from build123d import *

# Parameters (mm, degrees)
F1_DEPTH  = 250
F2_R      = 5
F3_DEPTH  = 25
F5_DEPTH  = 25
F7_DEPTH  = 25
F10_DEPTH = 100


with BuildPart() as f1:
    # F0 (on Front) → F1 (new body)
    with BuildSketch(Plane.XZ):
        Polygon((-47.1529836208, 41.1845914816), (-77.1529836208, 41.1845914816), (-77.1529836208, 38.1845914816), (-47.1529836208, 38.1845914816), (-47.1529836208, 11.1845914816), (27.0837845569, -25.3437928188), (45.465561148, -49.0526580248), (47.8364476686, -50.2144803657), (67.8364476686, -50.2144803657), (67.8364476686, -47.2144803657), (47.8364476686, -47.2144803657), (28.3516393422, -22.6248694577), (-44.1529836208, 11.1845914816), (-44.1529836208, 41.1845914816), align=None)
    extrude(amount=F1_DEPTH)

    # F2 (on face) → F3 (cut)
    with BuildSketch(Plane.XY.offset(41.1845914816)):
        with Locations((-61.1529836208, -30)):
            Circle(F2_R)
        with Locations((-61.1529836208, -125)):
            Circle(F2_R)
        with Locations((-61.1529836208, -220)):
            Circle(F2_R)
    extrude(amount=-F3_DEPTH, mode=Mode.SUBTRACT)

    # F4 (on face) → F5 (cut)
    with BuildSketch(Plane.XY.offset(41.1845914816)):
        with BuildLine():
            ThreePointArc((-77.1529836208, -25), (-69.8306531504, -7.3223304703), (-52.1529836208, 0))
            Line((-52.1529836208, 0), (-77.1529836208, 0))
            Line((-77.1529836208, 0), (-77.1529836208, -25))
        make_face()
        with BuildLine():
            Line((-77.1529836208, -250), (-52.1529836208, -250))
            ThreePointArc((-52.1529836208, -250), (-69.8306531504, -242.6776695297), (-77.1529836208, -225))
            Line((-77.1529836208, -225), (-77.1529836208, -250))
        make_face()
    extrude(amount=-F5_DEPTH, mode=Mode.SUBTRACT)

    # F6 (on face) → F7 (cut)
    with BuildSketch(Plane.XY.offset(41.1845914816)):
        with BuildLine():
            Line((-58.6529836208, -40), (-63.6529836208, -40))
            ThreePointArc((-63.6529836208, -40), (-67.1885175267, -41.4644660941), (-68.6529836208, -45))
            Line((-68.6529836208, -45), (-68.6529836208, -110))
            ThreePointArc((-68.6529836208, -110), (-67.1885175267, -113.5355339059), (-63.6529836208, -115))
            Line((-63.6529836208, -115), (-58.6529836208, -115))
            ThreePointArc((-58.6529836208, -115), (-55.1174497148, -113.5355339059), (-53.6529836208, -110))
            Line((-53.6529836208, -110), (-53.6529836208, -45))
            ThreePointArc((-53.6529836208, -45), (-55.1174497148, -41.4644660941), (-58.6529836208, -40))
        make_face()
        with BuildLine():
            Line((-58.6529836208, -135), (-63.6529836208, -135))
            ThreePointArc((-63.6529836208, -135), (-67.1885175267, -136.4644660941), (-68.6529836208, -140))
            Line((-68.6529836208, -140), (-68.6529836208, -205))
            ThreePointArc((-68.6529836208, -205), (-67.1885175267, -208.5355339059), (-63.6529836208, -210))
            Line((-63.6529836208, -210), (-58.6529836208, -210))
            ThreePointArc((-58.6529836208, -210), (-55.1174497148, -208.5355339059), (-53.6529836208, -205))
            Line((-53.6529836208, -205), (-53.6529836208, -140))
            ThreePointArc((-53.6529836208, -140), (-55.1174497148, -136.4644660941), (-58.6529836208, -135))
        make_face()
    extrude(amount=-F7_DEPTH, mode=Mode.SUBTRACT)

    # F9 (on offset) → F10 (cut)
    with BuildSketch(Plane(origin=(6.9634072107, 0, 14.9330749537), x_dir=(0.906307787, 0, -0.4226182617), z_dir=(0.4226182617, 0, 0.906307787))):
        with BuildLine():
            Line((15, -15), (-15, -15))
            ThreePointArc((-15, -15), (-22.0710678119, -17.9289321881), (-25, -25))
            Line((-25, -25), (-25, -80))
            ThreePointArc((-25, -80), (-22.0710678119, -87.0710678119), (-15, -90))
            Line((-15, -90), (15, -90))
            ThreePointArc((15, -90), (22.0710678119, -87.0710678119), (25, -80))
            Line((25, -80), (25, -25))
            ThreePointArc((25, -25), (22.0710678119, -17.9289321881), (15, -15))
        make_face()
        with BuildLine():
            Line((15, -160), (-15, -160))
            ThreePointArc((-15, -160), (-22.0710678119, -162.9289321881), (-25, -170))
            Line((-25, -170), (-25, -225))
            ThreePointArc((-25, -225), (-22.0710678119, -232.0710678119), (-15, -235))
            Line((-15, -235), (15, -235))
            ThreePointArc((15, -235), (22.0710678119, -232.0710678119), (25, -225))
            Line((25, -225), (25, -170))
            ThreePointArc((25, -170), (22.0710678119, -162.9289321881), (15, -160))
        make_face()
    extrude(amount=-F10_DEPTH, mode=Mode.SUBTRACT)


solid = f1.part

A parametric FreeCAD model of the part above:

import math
import FreeCAD as App
import Part
import Sketcher

V = App.Vector
Q = App.Units.Quantity


def add_polygon(sketch, points):
    """Adds a closed chain of lines whose ends are joined by coincident constraints."""
    first, n = sketch.GeometryCount, len(points)
    for a, b in zip(points, points[1:] + points[:1]):
        sketch.addGeometry(Part.LineSegment(App.Vector(*a, 0), App.Vector(*b, 0)), False)
    for i in range(n):
        sketch.addConstraint(Sketcher.Constraint("Coincident", first + i, 2, first + (i + 1) % n, 1))

doc = App.newDocument("Part")
body = doc.addObject("PartDesign::Body", "Body")

sketch1 = doc.addObject("Sketcher::SketchObject", "Sketch")
body.addObject(sketch1)
sketch1.AttachmentSupport = (doc.XZ_Plane, [""])
sketch1.MapMode = "FlatFace"
add_polygon(sketch1, [(-77.2, 41.2), (-77.2, 38.2), (-47.2, 38.2), (-47.2, 11.2), (27.1, -25.3), (45.5, -49.1), (47.8, -50.2), (67.8, -50.2), (67.8, -47.2), (47.8, -47.2), (28.4, -22.6), (-44.2, 11.2), (-44.2, 41.2)])
sketch1.addConstraint(Sketcher.Constraint("Vertical", 0))
sketch1.addConstraint(Sketcher.Constraint("Horizontal", 1))
sketch1.addConstraint(Sketcher.Constraint("Vertical", 2))
sketch1.addConstraint(Sketcher.Constraint("Horizontal", 6))
sketch1.addConstraint(Sketcher.Constraint("Vertical", 7))
sketch1.addConstraint(Sketcher.Constraint("Horizontal", 8))
sketch1.addConstraint(Sketcher.Constraint("Vertical", 11))
sketch1.addConstraint(Sketcher.Constraint("Horizontal", 12))
sketch1.addConstraint(Sketcher.Constraint("Horizontal", 2, 2, 10, 2))
sketch1.addConstraint(Sketcher.Constraint("Vertical", 5, 2, 8, 2))
sketch1.addConstraint(Sketcher.Constraint("Equal", 0, 7))
sketch1.addConstraint(Sketcher.Constraint("Equal", 1, 11))
sketch1.addConstraint(Sketcher.Constraint("DistanceX", 1, 1, 1, 2, 30.0))
sketch1.addConstraint(Sketcher.Constraint("DistanceX", 6, 1, 6, 2, 20.0))
sketch1.addConstraint(Sketcher.Constraint("DistanceX", 12, 2, 12, 1, 33.0))
sketch1.addConstraint(Sketcher.Constraint("DistanceY", 0, 2, 0, 1, 3.0))
sketch1.addConstraint(Sketcher.Constraint("Angle", 10, Q("155 deg")))
sketch1.addConstraint(Sketcher.Constraint("Distance", 4, 30.0))
sketch1.addConstraint(Sketcher.Constraint("Distance", 10, 80.0))
sketch1.addConstraint(Sketcher.Constraint("DistanceY", -1, 1, 0, 2, 38.184591))
sketch1.addConstraint(Sketcher.Constraint("DistanceX", -1, 1, 4, 2, 45.465561))
sketch1.addConstraint(Sketcher.Constraint("DistanceY", 4, 2, -1, 1, 49.052658))
sketch1.addConstraint(Sketcher.Constraint("DistanceY", 5, 2, -1, 1, 50.21448))
sketch1.addConstraint(Sketcher.Constraint("DistanceX", -1, 1, 9, 2, 28.351639))
sketch1.addConstraint(Sketcher.Constraint("DistanceX", 2, 2, 3, 2, 74.236768))
sketch1.addConstraint(Sketcher.Constraint("DistanceX", 2, 2, 5, 2, 94.989431))
pad1 = doc.addObject("PartDesign::Pad", "Pad")
body.addObject(pad1)
pad1.Profile = sketch1
pad1.Length = 250

sketch2 = doc.addObject("Sketcher::SketchObject", "Sketch001")
body.addObject(sketch2)
sketch2.AttachmentSupport = (doc.XY_Plane, [""])
sketch2.MapMode = "FlatFace"
sketch2.AttachmentOffset = App.Placement(V(0, 0, 41.184591), App.Rotation())
sketch2.addGeometry(Part.Circle(V(-61, -30, 0), V(0, 0, 1), 5), False)
sketch2.addGeometry(Part.Circle(V(-61, -125, 0), V(0, 0, 1), 5), False)
sketch2.addGeometry(Part.Circle(V(-61, -220, 0), V(0, 0, 1), 5), False)
sketch2.addConstraint(Sketcher.Constraint("Equal", 0, 1))
sketch2.addConstraint(Sketcher.Constraint("Equal", 1, 2))
sketch2.addConstraint(Sketcher.Constraint("Vertical", 0, 3, 1, 3))
sketch2.addConstraint(Sketcher.Constraint("Vertical", 1, 3, 2, 3))
sketch2.addConstraint(Sketcher.Constraint("Diameter", 0, 10.0))
sketch2.addConstraint(Sketcher.Constraint("DistanceY", 0, 3, -1, 1, 30.0))
sketch2.addConstraint(Sketcher.Constraint("DistanceY", 1, 3, -1, 1, 125.0))
sketch2.addConstraint(Sketcher.Constraint("DistanceY", 2, 3, -1, 1, 220.0))
sketch2.addConstraint(Sketcher.Constraint("DistanceX", 0, 3, -1, 1, 61.152984))
pocket1 = doc.addObject("PartDesign::Pocket", "Pocket")
body.addObject(pocket1)
pocket1.Profile = sketch2
pocket1.Length = 25

sketch3 = doc.addObject("Sketcher::SketchObject", "Sketch002")
body.addObject(sketch3)
sketch3.AttachmentSupport = (doc.XY_Plane, [""])
sketch3.MapMode = "FlatFace"
sketch3.AttachmentOffset = App.Placement(V(0, 0, 41.184591), App.Rotation())
sketch3.addGeometry(Part.ArcOfCircle(Part.Circle(V(-52, -25, 0), V(0, 0, 1), 25), math.radians(90), math.radians(180)), False)
sketch3.addGeometry(Part.LineSegment(V(-52, 0, 0), V(-77, 0, 0)), False)
sketch3.addGeometry(Part.LineSegment(V(-77, 0, 0), V(-77, -25, 0)), False)
sketch3.addGeometry(Part.LineSegment(V(-77, -250, 0), V(-52, -250, 0)), False)
sketch3.addGeometry(Part.ArcOfCircle(Part.Circle(V(-52, -225, 0), V(0, 0, 1), 25), math.radians(180), math.radians(270)), False)
sketch3.addGeometry(Part.LineSegment(V(-77, -225, 0), V(-77, -250, 0)), False)
sketch3.addConstraint(Sketcher.Constraint("Tangent", 0, 1, 1, 1))
sketch3.addConstraint(Sketcher.Constraint("Coincident", 1, 2, 2, 1))
sketch3.addConstraint(Sketcher.Constraint("Tangent", 2, 2, 0, 2))
sketch3.addConstraint(Sketcher.Constraint("Tangent", 3, 2, 4, 2))
sketch3.addConstraint(Sketcher.Constraint("Tangent", 4, 1, 5, 1))
sketch3.addConstraint(Sketcher.Constraint("Coincident", 5, 2, 3, 1))
sketch3.addConstraint(Sketcher.Constraint("Horizontal", 1))
sketch3.addConstraint(Sketcher.Constraint("Vertical", 2))
sketch3.addConstraint(Sketcher.Constraint("Horizontal", 3))
sketch3.addConstraint(Sketcher.Constraint("Vertical", 5))
sketch3.addConstraint(Sketcher.Constraint("Equal", 0, 4))
sketch3.addConstraint(Sketcher.Constraint("PointOnObject", 0, 1, -1))
sketch3.addConstraint(Sketcher.Constraint("Vertical", 0, 3, 4, 3))
sketch3.addConstraint(Sketcher.Constraint("Radius", 0, 25.0))
sketch3.addConstraint(Sketcher.Constraint("DistanceY", 4, 3, -1, 1, 225.0))
sketch3.addConstraint(Sketcher.Constraint("DistanceX", 0, 3, -1, 1, 52.152984))
pocket2 = doc.addObject("PartDesign::Pocket", "Pocket001")
body.addObject(pocket2)
pocket2.Profile = sketch3
pocket2.Length = 25

sketch4 = doc.addObject("Sketcher::SketchObject", "Sketch003")
body.addObject(sketch4)
sketch4.AttachmentSupport = (doc.XY_Plane, [""])
sketch4.MapMode = "FlatFace"
sketch4.AttachmentOffset = App.Placement(V(0, 0, 41.184591), App.Rotation())
sketch4.addGeometry(Part.LineSegment(V(-59, -40, 0), V(-64, -40, 0)), False)
sketch4.addGeometry(Part.ArcOfCircle(Part.Circle(V(-64, -45, 0), V(0, 0, 1), 5), math.radians(90), math.radians(180)), False)
sketch4.addGeometry(Part.LineSegment(V(-69, -45, 0), V(-69, -110, 0)), False)
sketch4.addGeometry(Part.ArcOfCircle(Part.Circle(V(-64, -110, 0), V(0, 0, 1), 5), math.radians(180), math.radians(270)), False)
sketch4.addGeometry(Part.LineSegment(V(-64, -115, 0), V(-59, -115, 0)), False)
sketch4.addGeometry(Part.ArcOfCircle(Part.Circle(V(-59, -110, 0), V(0, 0, 1), 5), math.radians(-90), math.radians(0)), False)
sketch4.addGeometry(Part.LineSegment(V(-54, -110, 0), V(-54, -45, 0)), False)
sketch4.addGeometry(Part.ArcOfCircle(Part.Circle(V(-59, -45, 0), V(0, 0, 1), 5), math.radians(0), math.radians(90)), False)
sketch4.addGeometry(Part.LineSegment(V(-59, -135, 0), V(-64, -135, 0)), False)
sketch4.addGeometry(Part.ArcOfCircle(Part.Circle(V(-64, -140, 0), V(0, 0, 1), 5), math.radians(90), math.radians(180)), False)
sketch4.addGeometry(Part.LineSegment(V(-69, -140, 0), V(-69, -205, 0)), False)
sketch4.addGeometry(Part.ArcOfCircle(Part.Circle(V(-64, -205, 0), V(0, 0, 1), 5), math.radians(180), math.radians(270)), False)
sketch4.addGeometry(Part.LineSegment(V(-64, -210, 0), V(-59, -210, 0)), False)
sketch4.addGeometry(Part.ArcOfCircle(Part.Circle(V(-59, -205, 0), V(0, 0, 1), 5), math.radians(-90), math.radians(0)), False)
sketch4.addGeometry(Part.LineSegment(V(-54, -205, 0), V(-54, -140, 0)), False)
sketch4.addGeometry(Part.ArcOfCircle(Part.Circle(V(-59, -140, 0), V(0, 0, 1), 5), math.radians(0), math.radians(90)), False)
sketch4.addConstraint(Sketcher.Constraint("Tangent", 0, 2, 1, 1))
sketch4.addConstraint(Sketcher.Constraint("Tangent", 1, 2, 2, 1))
sketch4.addConstraint(Sketcher.Constraint("Tangent", 2, 2, 3, 1))
sketch4.addConstraint(Sketcher.Constraint("Tangent", 3, 2, 4, 1))
sketch4.addConstraint(Sketcher.Constraint("Tangent", 4, 2, 5, 1))
sketch4.addConstraint(Sketcher.Constraint("Tangent", 5, 2, 6, 1))
sketch4.addConstraint(Sketcher.Constraint("Tangent", 6, 2, 7, 1))
sketch4.addConstraint(Sketcher.Constraint("Tangent", 7, 2, 0, 1))
sketch4.addConstraint(Sketcher.Constraint("Tangent", 8, 2, 9, 1))
sketch4.addConstraint(Sketcher.Constraint("Tangent", 9, 2, 10, 1))
sketch4.addConstraint(Sketcher.Constraint("Tangent", 10, 2, 11, 1))
sketch4.addConstraint(Sketcher.Constraint("Tangent", 11, 2, 12, 1))
sketch4.addConstraint(Sketcher.Constraint("Tangent", 12, 2, 13, 1))
sketch4.addConstraint(Sketcher.Constraint("Tangent", 13, 2, 14, 1))
sketch4.addConstraint(Sketcher.Constraint("Tangent", 14, 2, 15, 1))
sketch4.addConstraint(Sketcher.Constraint("Tangent", 15, 2, 8, 1))
sketch4.addConstraint(Sketcher.Constraint("Horizontal", 0))
sketch4.addConstraint(Sketcher.Constraint("Vertical", 2))
sketch4.addConstraint(Sketcher.Constraint("Horizontal", 4))
sketch4.addConstraint(Sketcher.Constraint("Vertical", 6))
sketch4.addConstraint(Sketcher.Constraint("Horizontal", 8))
sketch4.addConstraint(Sketcher.Constraint("Vertical", 10))
sketch4.addConstraint(Sketcher.Constraint("Horizontal", 12))
sketch4.addConstraint(Sketcher.Constraint("Vertical", 14))
sketch4.addConstraint(Sketcher.Constraint("Equal", 1, 3))
sketch4.addConstraint(Sketcher.Constraint("Equal", 3, 5))
sketch4.addConstraint(Sketcher.Constraint("Equal", 5, 7))
sketch4.addConstraint(Sketcher.Constraint("Equal", 7, 9))
sketch4.addConstraint(Sketcher.Constraint("Equal", 9, 11))
sketch4.addConstraint(Sketcher.Constraint("Equal", 11, 13))
sketch4.addConstraint(Sketcher.Constraint("Equal", 13, 15))
sketch4.addConstraint(Sketcher.Constraint("Vertical", 3, 3, 9, 3))
sketch4.addConstraint(Sketcher.Constraint("Vertical", 7, 3, 13, 3))
sketch4.addConstraint(Sketcher.Constraint("Equal", 6, 10))
sketch4.addConstraint(Sketcher.Constraint("Radius", 1, 5.0))
sketch4.addConstraint(Sketcher.Constraint("DistanceX", 0, 2, 0, 1, 5.0))
sketch4.addConstraint(Sketcher.Constraint("DistanceY", 2, 2, 2, 1, 65.0))
sketch4.addConstraint(Sketcher.Constraint("DistanceY", 1, 3, -1, 1, 45.0))
sketch4.addConstraint(Sketcher.Constraint("DistanceY", 9, 3, -1, 1, 140.0))
sketch4.addConstraint(Sketcher.Constraint("DistanceX", 1, 3, -1, 1, 63.652984))
pocket3 = doc.addObject("PartDesign::Pocket", "Pocket002")
body.addObject(pocket3)
pocket3.Profile = sketch4
pocket3.Length = 25

sketch5 = doc.addObject("Sketcher::SketchObject", "Sketch004")
body.addObject(sketch5)
sketch5.Placement = App.Placement(V(6.963407, 0, 14.933075), App.Rotation(V(0.906307787, 0, -0.422618262), V(0, 1, 0), V(0.422618262, 0, 0.906307787), "ZXY"))
sketch5.addGeometry(Part.LineSegment(V(15, -15, 0), V(-15, -15, 0)), False)
sketch5.addGeometry(Part.ArcOfCircle(Part.Circle(V(-15, -25, 0), V(0, 0, 1), 10), math.radians(90), math.radians(180)), False)
sketch5.addGeometry(Part.LineSegment(V(-25, -25, 0), V(-25, -80, 0)), False)
sketch5.addGeometry(Part.ArcOfCircle(Part.Circle(V(-15, -80, 0), V(0, 0, 1), 10), math.radians(180), math.radians(270)), False)
sketch5.addGeometry(Part.LineSegment(V(-15, -90, 0), V(15, -90, 0)), False)
sketch5.addGeometry(Part.ArcOfCircle(Part.Circle(V(15, -80, 0), V(0, 0, 1), 10), math.radians(-90), math.radians(0)), False)
sketch5.addGeometry(Part.LineSegment(V(25, -80, 0), V(25, -25, 0)), False)
sketch5.addGeometry(Part.ArcOfCircle(Part.Circle(V(15, -25, 0), V(0, 0, 1), 10), math.radians(0), math.radians(90)), False)
sketch5.addGeometry(Part.LineSegment(V(15, -160, 0), V(-15, -160, 0)), False)
sketch5.addGeometry(Part.ArcOfCircle(Part.Circle(V(-15, -170, 0), V(0, 0, 1), 10), math.radians(90), math.radians(180)), False)
sketch5.addGeometry(Part.LineSegment(V(-25, -170, 0), V(-25, -225, 0)), False)
sketch5.addGeometry(Part.ArcOfCircle(Part.Circle(V(-15, -225, 0), V(0, 0, 1), 10), math.radians(180), math.radians(270)), False)
sketch5.addGeometry(Part.LineSegment(V(-15, -235, 0), V(15, -235, 0)), False)
sketch5.addGeometry(Part.ArcOfCircle(Part.Circle(V(15, -225, 0), V(0, 0, 1), 10), math.radians(-90), math.radians(0)), False)
sketch5.addGeometry(Part.LineSegment(V(25, -225, 0), V(25, -170, 0)), False)
sketch5.addGeometry(Part.ArcOfCircle(Part.Circle(V(15, -170, 0), V(0, 0, 1), 10), math.radians(0), math.radians(90)), False)
sketch5.addConstraint(Sketcher.Constraint("Tangent", 0, 2, 1, 1))
sketch5.addConstraint(Sketcher.Constraint("Tangent", 1, 2, 2, 1))
sketch5.addConstraint(Sketcher.Constraint("Tangent", 2, 2, 3, 1))
sketch5.addConstraint(Sketcher.Constraint("Tangent", 3, 2, 4, 1))
sketch5.addConstraint(Sketcher.Constraint("Tangent", 4, 2, 5, 1))
sketch5.addConstraint(Sketcher.Constraint("Tangent", 5, 2, 6, 1))
sketch5.addConstraint(Sketcher.Constraint("Tangent", 6, 2, 7, 1))
sketch5.addConstraint(Sketcher.Constraint("Tangent", 7, 2, 0, 1))
sketch5.addConstraint(Sketcher.Constraint("Tangent", 8, 2, 9, 1))
sketch5.addConstraint(Sketcher.Constraint("Tangent", 9, 2, 10, 1))
sketch5.addConstraint(Sketcher.Constraint("Tangent", 10, 2, 11, 1))
sketch5.addConstraint(Sketcher.Constraint("Tangent", 11, 2, 12, 1))
sketch5.addConstraint(Sketcher.Constraint("Tangent", 12, 2, 13, 1))
sketch5.addConstraint(Sketcher.Constraint("Tangent", 13, 2, 14, 1))
sketch5.addConstraint(Sketcher.Constraint("Tangent", 14, 2, 15, 1))
sketch5.addConstraint(Sketcher.Constraint("Tangent", 15, 2, 8, 1))
sketch5.addConstraint(Sketcher.Constraint("Horizontal", 0))
sketch5.addConstraint(Sketcher.Constraint("Vertical", 2))
sketch5.addConstraint(Sketcher.Constraint("Horizontal", 4))
sketch5.addConstraint(Sketcher.Constraint("Vertical", 6))
sketch5.addConstraint(Sketcher.Constraint("Horizontal", 8))
sketch5.addConstraint(Sketcher.Constraint("Vertical", 10))
sketch5.addConstraint(Sketcher.Constraint("Horizontal", 12))
sketch5.addConstraint(Sketcher.Constraint("Vertical", 14))
sketch5.addConstraint(Sketcher.Constraint("Equal", 1, 3))
sketch5.addConstraint(Sketcher.Constraint("Equal", 3, 5))
sketch5.addConstraint(Sketcher.Constraint("Equal", 5, 7))
sketch5.addConstraint(Sketcher.Constraint("Equal", 7, 9))
sketch5.addConstraint(Sketcher.Constraint("Equal", 9, 11))
sketch5.addConstraint(Sketcher.Constraint("Equal", 11, 13))
sketch5.addConstraint(Sketcher.Constraint("Equal", 13, 15))
sketch5.addConstraint(Sketcher.Constraint("Vertical", 3, 3, 9, 3))
sketch5.addConstraint(Sketcher.Constraint("Vertical", 7, 3, 13, 3))
sketch5.addConstraint(Sketcher.Constraint("Equal", 6, 10))
sketch5.addConstraint(Sketcher.Constraint("Radius", 1, 10.0))
sketch5.addConstraint(Sketcher.Constraint("DistanceX", 0, 2, 0, 1, 30.0))
sketch5.addConstraint(Sketcher.Constraint("DistanceY", 2, 2, 2, 1, 55.0))
sketch5.addConstraint(Sketcher.Constraint("DistanceX", 1, 3, -1, 1, 15.0))
sketch5.addConstraint(Sketcher.Constraint("DistanceY", 1, 3, -1, 1, 25.0))
sketch5.addConstraint(Sketcher.Constraint("DistanceY", 9, 3, -1, 1, 170.0))
pocket4 = doc.addObject("PartDesign::Pocket", "Pocket003")
body.addObject(pocket4)
pocket4.Profile = sketch5
pocket4.Length = 100

doc.recompute()
